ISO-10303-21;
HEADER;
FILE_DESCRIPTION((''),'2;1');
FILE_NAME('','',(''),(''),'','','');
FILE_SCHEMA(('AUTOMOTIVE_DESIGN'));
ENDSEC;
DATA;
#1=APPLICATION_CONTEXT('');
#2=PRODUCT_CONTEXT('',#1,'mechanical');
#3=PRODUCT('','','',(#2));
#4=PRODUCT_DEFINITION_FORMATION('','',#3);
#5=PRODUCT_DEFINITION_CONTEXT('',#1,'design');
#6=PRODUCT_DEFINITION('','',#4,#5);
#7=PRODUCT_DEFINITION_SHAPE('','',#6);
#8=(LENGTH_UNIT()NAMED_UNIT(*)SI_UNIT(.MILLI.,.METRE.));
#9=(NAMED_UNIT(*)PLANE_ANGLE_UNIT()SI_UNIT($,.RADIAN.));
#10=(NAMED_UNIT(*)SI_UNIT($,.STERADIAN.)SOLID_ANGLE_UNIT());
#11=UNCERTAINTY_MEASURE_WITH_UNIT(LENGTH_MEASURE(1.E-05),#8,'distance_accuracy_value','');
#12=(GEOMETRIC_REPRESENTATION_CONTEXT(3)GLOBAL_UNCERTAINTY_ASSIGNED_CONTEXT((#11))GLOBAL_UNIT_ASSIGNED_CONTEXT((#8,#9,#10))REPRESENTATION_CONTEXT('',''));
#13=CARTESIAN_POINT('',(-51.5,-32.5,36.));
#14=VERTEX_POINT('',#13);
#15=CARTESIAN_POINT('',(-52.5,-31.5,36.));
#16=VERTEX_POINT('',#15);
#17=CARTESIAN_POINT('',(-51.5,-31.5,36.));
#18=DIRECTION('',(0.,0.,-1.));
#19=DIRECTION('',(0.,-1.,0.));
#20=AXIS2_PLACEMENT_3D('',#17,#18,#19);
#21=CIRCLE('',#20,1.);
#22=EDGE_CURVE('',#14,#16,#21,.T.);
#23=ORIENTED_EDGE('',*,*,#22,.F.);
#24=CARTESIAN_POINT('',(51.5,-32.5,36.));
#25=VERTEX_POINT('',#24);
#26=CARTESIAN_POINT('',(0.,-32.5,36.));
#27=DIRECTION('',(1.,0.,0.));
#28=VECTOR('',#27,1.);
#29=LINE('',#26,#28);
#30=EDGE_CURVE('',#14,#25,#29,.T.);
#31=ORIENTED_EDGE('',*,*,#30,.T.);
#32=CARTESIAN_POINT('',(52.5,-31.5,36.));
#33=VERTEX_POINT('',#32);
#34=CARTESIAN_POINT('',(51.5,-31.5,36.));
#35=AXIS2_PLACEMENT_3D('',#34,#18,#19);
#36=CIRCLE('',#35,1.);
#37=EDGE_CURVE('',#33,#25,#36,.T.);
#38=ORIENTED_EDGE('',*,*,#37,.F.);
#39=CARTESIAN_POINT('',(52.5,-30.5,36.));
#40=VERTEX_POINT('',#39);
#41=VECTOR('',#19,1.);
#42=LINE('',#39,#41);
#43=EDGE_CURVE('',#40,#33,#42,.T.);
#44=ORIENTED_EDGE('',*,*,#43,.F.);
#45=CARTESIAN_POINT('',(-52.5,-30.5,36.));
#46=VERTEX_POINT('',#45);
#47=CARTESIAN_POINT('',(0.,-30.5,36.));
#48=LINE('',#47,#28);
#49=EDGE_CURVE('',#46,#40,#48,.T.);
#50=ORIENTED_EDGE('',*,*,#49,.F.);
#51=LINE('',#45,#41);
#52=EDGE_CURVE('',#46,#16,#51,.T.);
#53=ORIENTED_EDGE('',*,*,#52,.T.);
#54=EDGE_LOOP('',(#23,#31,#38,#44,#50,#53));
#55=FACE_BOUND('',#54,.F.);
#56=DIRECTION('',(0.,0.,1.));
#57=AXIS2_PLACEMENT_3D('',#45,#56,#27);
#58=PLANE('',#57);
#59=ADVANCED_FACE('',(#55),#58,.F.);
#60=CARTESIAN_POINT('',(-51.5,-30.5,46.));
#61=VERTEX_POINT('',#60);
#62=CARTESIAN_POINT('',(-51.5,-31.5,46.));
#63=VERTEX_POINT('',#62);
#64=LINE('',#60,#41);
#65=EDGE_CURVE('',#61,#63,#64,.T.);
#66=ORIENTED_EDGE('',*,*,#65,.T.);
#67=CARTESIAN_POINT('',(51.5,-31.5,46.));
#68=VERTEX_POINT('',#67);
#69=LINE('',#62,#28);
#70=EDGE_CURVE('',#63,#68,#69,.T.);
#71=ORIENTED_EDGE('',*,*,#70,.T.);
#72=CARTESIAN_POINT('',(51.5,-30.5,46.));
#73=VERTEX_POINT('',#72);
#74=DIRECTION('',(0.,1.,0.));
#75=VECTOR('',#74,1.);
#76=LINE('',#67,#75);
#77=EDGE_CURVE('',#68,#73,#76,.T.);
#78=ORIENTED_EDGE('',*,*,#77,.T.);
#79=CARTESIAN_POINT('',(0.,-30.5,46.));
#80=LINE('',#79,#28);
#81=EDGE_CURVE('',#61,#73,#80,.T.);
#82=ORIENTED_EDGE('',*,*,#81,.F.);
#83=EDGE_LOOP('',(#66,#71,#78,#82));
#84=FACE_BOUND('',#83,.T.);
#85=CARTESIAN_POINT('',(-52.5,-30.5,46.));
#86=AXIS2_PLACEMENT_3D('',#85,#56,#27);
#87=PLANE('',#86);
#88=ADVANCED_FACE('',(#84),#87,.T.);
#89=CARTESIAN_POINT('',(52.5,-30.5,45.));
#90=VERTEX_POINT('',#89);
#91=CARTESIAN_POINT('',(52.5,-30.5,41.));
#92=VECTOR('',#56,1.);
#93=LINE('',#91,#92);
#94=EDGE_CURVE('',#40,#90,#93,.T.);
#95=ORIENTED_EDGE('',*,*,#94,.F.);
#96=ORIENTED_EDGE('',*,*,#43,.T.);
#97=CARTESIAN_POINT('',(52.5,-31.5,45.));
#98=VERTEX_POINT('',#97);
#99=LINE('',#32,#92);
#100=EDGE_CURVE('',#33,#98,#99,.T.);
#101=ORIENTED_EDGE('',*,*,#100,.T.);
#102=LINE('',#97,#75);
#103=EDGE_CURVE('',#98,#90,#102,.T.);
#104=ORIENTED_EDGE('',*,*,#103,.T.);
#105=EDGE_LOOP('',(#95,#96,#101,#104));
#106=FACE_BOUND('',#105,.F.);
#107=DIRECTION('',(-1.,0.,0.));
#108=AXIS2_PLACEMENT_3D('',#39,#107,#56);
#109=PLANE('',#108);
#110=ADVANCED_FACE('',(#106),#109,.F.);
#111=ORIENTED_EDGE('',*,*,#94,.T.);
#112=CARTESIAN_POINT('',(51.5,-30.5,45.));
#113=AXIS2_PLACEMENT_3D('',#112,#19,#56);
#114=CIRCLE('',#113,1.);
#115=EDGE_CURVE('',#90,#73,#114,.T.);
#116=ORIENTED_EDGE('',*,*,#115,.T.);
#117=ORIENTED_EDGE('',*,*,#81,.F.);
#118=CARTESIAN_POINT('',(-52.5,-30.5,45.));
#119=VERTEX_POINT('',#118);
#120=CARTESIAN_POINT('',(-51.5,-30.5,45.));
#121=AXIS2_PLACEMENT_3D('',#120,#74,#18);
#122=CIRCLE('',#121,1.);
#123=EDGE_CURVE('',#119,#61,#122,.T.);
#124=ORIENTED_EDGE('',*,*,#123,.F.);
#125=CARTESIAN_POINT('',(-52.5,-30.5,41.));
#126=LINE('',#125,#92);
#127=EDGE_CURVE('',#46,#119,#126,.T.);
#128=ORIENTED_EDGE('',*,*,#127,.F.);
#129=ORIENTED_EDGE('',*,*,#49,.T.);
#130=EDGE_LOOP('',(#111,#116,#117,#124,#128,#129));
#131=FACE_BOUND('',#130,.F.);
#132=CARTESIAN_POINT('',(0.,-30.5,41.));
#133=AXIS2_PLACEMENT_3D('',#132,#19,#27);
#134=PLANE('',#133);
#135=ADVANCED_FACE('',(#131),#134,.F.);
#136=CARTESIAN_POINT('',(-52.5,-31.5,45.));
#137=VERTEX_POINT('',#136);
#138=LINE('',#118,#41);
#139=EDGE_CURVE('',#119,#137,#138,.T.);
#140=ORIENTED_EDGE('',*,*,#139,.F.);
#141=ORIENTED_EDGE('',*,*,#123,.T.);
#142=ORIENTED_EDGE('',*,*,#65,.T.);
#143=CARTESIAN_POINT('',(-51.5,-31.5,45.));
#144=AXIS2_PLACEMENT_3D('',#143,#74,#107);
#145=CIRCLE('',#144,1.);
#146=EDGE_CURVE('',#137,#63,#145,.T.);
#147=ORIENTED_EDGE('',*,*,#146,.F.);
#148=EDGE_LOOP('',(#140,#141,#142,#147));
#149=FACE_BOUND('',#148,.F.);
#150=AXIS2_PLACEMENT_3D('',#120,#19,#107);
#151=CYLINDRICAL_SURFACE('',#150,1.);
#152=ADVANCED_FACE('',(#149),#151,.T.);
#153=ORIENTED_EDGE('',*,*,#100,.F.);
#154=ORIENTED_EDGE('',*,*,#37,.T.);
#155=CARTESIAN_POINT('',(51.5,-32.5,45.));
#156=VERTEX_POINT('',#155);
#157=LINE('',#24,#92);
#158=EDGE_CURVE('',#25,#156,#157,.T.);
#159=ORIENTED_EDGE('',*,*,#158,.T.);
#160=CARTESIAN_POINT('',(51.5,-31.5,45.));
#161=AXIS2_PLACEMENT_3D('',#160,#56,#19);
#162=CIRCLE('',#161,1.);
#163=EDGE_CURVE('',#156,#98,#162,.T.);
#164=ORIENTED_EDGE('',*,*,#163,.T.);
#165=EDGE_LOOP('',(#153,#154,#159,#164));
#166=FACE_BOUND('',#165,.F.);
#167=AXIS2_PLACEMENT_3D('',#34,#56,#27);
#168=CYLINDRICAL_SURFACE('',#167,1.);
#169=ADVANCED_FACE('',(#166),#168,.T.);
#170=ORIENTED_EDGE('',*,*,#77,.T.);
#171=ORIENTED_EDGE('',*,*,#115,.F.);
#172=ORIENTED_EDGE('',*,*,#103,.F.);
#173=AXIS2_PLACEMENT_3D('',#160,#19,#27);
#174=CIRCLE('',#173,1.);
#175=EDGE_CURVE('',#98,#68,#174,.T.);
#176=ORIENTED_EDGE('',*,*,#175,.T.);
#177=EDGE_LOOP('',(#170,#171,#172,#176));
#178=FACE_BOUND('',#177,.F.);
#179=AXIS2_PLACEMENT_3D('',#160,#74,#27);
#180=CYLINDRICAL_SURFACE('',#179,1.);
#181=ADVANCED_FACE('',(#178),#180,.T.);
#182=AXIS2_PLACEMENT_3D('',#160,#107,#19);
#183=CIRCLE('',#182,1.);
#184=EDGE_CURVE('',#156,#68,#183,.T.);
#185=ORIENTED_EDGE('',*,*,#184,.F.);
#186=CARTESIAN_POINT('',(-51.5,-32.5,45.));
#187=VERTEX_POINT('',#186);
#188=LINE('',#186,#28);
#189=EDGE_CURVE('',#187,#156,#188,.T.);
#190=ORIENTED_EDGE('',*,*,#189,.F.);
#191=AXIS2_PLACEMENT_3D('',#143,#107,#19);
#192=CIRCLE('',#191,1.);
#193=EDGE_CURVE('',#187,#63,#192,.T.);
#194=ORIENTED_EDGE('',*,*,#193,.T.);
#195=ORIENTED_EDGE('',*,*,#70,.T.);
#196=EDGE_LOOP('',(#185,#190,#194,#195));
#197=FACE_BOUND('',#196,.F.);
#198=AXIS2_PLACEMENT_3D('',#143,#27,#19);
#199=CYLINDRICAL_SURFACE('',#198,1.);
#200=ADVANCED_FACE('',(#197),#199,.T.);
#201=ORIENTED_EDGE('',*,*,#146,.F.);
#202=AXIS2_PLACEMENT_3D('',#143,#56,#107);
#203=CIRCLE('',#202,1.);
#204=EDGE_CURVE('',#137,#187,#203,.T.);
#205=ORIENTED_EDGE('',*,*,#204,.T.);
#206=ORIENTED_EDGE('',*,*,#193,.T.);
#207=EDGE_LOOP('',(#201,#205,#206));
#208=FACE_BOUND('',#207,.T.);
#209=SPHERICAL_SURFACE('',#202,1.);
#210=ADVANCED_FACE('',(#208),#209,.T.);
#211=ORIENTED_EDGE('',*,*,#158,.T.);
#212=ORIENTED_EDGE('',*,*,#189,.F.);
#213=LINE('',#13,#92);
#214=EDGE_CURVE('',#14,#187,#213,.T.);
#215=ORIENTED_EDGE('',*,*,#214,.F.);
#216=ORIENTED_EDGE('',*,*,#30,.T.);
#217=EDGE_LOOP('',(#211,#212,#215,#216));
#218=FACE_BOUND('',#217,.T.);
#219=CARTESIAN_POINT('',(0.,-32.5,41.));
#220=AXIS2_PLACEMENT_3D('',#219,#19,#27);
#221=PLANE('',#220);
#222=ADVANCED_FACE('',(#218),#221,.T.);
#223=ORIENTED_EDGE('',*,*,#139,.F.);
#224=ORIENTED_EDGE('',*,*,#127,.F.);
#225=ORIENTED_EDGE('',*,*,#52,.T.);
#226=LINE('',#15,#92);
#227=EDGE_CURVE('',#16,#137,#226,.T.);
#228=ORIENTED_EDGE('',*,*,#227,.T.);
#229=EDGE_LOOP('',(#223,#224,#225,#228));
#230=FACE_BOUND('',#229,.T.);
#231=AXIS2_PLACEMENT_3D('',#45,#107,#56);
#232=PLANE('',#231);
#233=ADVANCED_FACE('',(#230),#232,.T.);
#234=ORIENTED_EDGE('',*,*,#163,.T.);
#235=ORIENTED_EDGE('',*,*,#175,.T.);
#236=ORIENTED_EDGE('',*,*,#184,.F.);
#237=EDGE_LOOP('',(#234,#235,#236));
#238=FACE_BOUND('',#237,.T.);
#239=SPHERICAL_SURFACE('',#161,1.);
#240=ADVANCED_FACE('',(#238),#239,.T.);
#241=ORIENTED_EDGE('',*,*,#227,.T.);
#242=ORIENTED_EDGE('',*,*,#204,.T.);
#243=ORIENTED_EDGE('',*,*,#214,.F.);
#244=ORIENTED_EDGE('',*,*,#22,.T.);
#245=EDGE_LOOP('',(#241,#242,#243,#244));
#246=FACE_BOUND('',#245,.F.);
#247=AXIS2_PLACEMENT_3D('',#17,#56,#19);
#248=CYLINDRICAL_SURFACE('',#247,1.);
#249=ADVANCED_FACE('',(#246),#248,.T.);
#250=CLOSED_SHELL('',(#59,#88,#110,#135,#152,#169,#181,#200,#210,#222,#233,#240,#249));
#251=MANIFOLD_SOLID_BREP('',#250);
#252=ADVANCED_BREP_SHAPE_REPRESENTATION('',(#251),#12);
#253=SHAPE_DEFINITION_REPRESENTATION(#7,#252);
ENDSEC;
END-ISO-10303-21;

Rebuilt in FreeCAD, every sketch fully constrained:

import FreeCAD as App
import Part
import Sketcher
from FreeCAD import Vector
Q = App.Units.Quantity


def edges_at(feature, points):
    """Names of the edges that pass closest to the given points."""
    edges = feature.Shape.Edges
    near = lambda p: min(range(len(edges)), key=lambda i: edges[i].distToShape(Part.Vertex(*p))[0])
    return sorted({f"Edge{near(p) + 1}" for p in points})

doc = App.newDocument("Part")
body = doc.addObject("PartDesign::Body", "Body")

sketch1 = body.newObject("Sketcher::SketchObject", "Sketch")
sketch1.AttachmentSupport = (doc.getObject("XZ_Plane"), [""])
sketch1.MapMode = "FlatFace"
sketch1.addGeometry(Part.LineSegment(Vector(-52, 10, 0), Vector(-52, 0, 0)), False)
sketch1.addGeometry(Part.LineSegment(Vector(-52, 0, 0), Vector(52, 0, 0)), False)
sketch1.addGeometry(Part.LineSegment(Vector(52, 0, 0), Vector(52, 10, 0)), False)
sketch1.addGeometry(Part.LineSegment(Vector(52, 10, 0), Vector(-52, 10, 0)), False)
sketch1.addConstraint(Sketcher.Constraint("Coincident", 0, 2, 1, 1))
sketch1.addConstraint(Sketcher.Constraint("Coincident", 1, 2, 2, 1))
sketch1.addConstraint(Sketcher.Constraint("Coincident", 2, 2, 3, 1))
sketch1.addConstraint(Sketcher.Constraint("Coincident", 3, 2, 0, 1))
sketch1.addConstraint(Sketcher.Constraint("Vertical", 0))
sketch1.addConstraint(Sketcher.Constraint("Horizontal", 1))
sketch1.addConstraint(Sketcher.Constraint("Vertical", 2))
sketch1.addConstraint(Sketcher.Constraint("Horizontal", 3))
sketch1.addConstraint(Sketcher.Constraint("Symmetric", 0, 2, 1, 2, -1, 1))
sketch1.addConstraint(Sketcher.Constraint("DistanceX", 1, 1, 1, 2, Q("105 mm")))
sketch1.addConstraint(Sketcher.Constraint("DistanceY", 0, 2, 0, 1, Q("10 mm")))
pad1 = body.newObject("PartDesign::Pad", "Pad")
pad1.Profile = sketch1
pad1.Length = 2
doc.recompute()

fillet = body.newObject("PartDesign::Fillet", "Fillet")
fillet.Base = (pad1, edges_at(pad1, [(52.5, -2, 5)]))
fillet.Radius = 1
doc.recompute()

fillet2 = body.newObject("PartDesign::Fillet", "Fillet001")
fillet2.Base = (fillet, edges_at(fillet, [(-52.5, -2, 5)]))
fillet2.Radius = 1
doc.recompute()

fillet3 = body.newObject("PartDesign::Fillet", "Fillet002")
fillet3.Base = (fillet2, edges_at(fillet2, [(0, -2, 10)]))
fillet3.Radius = 1
body2 = doc.addObject("PartDesign::Body", "Body001")
doc.recompute()

body.Placement = App.Placement(Vector(0, -30.5, 36), App.Rotation(Vector(0, 0, 1), 0))
boolean = body2.newObject("PartDesign::Boolean", "Boolean")
boolean.Type = "Fuse"
boolean.addObjects([body])

doc.recompute()
